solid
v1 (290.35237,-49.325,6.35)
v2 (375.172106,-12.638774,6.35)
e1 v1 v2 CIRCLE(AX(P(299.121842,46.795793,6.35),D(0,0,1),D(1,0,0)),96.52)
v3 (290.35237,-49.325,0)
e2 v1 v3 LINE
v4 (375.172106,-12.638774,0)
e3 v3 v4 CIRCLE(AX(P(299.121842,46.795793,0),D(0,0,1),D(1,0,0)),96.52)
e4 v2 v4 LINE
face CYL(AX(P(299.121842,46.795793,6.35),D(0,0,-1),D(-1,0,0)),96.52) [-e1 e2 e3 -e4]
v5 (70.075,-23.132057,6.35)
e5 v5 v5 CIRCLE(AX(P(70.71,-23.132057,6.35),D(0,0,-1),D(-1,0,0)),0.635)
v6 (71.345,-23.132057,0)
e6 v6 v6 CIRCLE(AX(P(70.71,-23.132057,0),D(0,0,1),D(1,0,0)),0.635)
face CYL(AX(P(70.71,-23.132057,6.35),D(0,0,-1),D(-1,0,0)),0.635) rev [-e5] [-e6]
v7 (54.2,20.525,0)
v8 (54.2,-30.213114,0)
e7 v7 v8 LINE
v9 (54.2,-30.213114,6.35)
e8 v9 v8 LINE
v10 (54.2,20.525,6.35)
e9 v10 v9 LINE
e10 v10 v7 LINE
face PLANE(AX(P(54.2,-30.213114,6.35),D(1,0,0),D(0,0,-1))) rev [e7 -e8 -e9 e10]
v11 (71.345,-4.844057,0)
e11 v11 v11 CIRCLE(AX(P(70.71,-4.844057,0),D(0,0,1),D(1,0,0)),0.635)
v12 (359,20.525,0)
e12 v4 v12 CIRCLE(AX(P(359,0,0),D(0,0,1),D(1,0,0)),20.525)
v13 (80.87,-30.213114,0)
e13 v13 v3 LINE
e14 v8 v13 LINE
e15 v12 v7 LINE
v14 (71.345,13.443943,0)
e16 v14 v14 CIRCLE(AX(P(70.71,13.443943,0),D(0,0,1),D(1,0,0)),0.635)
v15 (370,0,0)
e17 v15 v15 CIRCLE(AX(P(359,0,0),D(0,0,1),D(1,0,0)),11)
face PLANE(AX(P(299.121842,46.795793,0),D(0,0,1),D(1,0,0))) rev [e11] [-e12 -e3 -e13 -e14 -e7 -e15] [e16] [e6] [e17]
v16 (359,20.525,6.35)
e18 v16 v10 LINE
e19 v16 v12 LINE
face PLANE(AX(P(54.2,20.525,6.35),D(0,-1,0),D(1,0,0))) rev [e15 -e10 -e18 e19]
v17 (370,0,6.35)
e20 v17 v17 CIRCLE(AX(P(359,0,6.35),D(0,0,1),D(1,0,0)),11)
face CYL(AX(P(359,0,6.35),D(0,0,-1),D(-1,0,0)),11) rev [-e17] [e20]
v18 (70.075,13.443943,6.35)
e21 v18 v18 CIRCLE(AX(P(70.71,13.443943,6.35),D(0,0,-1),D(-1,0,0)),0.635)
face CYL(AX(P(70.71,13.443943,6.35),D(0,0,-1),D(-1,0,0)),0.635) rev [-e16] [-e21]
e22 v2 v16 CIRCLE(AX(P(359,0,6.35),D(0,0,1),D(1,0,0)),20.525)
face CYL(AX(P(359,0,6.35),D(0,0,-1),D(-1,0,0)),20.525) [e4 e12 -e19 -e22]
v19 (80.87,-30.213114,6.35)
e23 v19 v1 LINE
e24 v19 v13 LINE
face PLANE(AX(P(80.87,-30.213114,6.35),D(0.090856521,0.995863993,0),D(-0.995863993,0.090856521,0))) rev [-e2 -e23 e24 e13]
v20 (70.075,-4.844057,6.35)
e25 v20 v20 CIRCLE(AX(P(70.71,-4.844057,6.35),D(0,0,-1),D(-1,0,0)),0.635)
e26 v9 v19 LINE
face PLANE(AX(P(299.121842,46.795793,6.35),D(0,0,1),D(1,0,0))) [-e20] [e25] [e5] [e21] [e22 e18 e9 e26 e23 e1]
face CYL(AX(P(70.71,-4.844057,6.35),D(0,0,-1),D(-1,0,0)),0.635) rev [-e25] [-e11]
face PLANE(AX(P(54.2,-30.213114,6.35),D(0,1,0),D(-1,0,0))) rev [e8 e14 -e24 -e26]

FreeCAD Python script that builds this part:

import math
import FreeCAD as App
import Part
import Sketcher
from FreeCAD import Vector
Q = App.Units.Quantity

doc = App.newDocument("Part")
params = doc.addObject("Spreadsheet::Sheet", "Params")
for row, (alias, value) in enumerate([
    ("sketch1_radius", "3.8 in"),
    ("sketch1_width", "12 in"),
    ("sketch1_width2", "1.05 in"),
    ("pad1_length", "0.25 in"),
    ("sketch2_diameter", "0.05 in"),
], start=1):
    params.set(f"A{row}", alias)
    params.set(f"B{row}", "=" + value)
    params.setAlias(f"B{row}", alias)

body = doc.addObject("PartDesign::Body", "Body")

# Sketch on XY plane
sketch1 = body.newObject("Sketcher::SketchObject", "Sketch")
sketch1.AttachmentSupport = (doc.getObject("XY_Plane"), [""])
sketch1.MapMode = "FlatFace"
sketch1.addGeometry([
    Part.LineSegment(Vector(54, -30, 0), Vector(81, -30, 0)),  # 0
    Part.LineSegment(Vector(81, -30, 0), Vector(290, -49, 0)),  # 1
    Part.ArcOfCircle(Part.Circle(Vector(299, 47, 0), Vector(0, 0, 1), 97), math.radians(-95), math.radians(-38)),  # 2
    Part.ArcOfCircle(Part.Circle(Vector(359, 0, 0), Vector(0, 0, 1), 21), math.radians(-38), math.radians(90)),  # 3
    Part.LineSegment(Vector(359, 21, 0), Vector(54, 21, 0)),  # 4
    Part.LineSegment(Vector(54, 21, 0), Vector(54, -30, 0)),  # 5
    Part.Circle(Vector(359, 0, 0), Vector(0, 0, 1), 11),  # 6
], False)
sketch1.addConstraint([
    Sketcher.Constraint("Coincident", 0, 2, 1, 1),
    Sketcher.Constraint("Tangent", 1, 2, 2, 1),
    Sketcher.Constraint("Tangent", 2, 2, 3, 1),
    Sketcher.Constraint("Tangent", 3, 2, 4, 1),
    Sketcher.Constraint("Coincident", 4, 2, 5, 1),
    Sketcher.Constraint("Coincident", 5, 2, 0, 1),
    Sketcher.Constraint("Horizontal", 0),
    Sketcher.Constraint("Horizontal", 4),
    Sketcher.Constraint("Vertical", 5),
    Sketcher.Constraint("Coincident", 6, 3, 3, 3),
    Sketcher.Constraint("PointOnObject", 3, 3, -1),
    Sketcher.Constraint("Radius", 2, Q("3.8 in")),
    Sketcher.Constraint("DistanceX", 4, 2, 4, 1, Q("12 in")),
    Sketcher.Constraint("DistanceX", 0, 1, 0, 2, Q("1.05 in")),
    Sketcher.Constraint("Diameter", 6, Q("22 mm")),
    Sketcher.Constraint("Radius", 3, Q("20.525 mm")),
    Sketcher.Constraint("DistanceY", 1, 2, 3, 2, Q("2.75 in")),
    Sketcher.Constraint("DistanceX", -1, 1, 3, 3, Q("359 mm")),
    Sketcher.Constraint("Distance", 1, Q("210.352389 mm")),
])
sketch1.setExpression("Constraints[11]", "Params.sketch1_radius")
sketch1.setExpression("Constraints[12]", "Params.sketch1_width")
sketch1.setExpression("Constraints[13]", "Params.sketch1_width2")
pad1 = body.newObject("PartDesign::Pad", "Pad")
pad1.Profile = sketch1
pad1.setExpression("Length", "Params.pad1_length")

# Sketch on XY plane
sketch2 = body.newObject("Sketcher::SketchObject", "Sketch001")
sketch2.AttachmentSupport = (doc.getObject("XY_Plane"), [""])
sketch2.MapMode = "FlatFace"
sketch2.addGeometry([
    Part.Circle(Vector(70.7, -23.1, 0), Vector(0, 0, 1), 0.6),
    Part.Circle(Vector(70.7, -4.8, 0), Vector(0, 0, 1), 0.6),
    Part.Circle(Vector(70.7, 13.4, 0), Vector(0, 0, 1), 0.6),
], False)
sketch2.addConstraint([
    Sketcher.Constraint("Equal", 0, 1),
    Sketcher.Constraint("Equal", 1, 2),
    Sketcher.Constraint("Vertical", 0, 3, 1, 3),
    Sketcher.Constraint("Vertical", 1, 3, 2, 3),
    Sketcher.Constraint("Diameter", 0, Q("0.05 in")),
    Sketcher.Constraint("DistanceY", 0, 3, 1, 3, Q("0.72 in")),
    Sketcher.Constraint("DistanceY", 1, 3, 2, 3, Q("0.72 in")),
    Sketcher.Constraint("DistanceX", -1, 1, 0, 3, Q("70.71 mm")),
    Sketcher.Constraint("DistanceY", 0, 3, -1, 1, Q("23.132057 mm")),
])
sketch2.setExpression("Constraints[4]", "Params.sketch2_diameter")
pocket1 = body.newObject("PartDesign::Pocket", "Pocket")
pocket1.Profile = sketch2
pocket1.Type = "ThroughAll"
pocket1.Midplane = True

doc.recompute()
